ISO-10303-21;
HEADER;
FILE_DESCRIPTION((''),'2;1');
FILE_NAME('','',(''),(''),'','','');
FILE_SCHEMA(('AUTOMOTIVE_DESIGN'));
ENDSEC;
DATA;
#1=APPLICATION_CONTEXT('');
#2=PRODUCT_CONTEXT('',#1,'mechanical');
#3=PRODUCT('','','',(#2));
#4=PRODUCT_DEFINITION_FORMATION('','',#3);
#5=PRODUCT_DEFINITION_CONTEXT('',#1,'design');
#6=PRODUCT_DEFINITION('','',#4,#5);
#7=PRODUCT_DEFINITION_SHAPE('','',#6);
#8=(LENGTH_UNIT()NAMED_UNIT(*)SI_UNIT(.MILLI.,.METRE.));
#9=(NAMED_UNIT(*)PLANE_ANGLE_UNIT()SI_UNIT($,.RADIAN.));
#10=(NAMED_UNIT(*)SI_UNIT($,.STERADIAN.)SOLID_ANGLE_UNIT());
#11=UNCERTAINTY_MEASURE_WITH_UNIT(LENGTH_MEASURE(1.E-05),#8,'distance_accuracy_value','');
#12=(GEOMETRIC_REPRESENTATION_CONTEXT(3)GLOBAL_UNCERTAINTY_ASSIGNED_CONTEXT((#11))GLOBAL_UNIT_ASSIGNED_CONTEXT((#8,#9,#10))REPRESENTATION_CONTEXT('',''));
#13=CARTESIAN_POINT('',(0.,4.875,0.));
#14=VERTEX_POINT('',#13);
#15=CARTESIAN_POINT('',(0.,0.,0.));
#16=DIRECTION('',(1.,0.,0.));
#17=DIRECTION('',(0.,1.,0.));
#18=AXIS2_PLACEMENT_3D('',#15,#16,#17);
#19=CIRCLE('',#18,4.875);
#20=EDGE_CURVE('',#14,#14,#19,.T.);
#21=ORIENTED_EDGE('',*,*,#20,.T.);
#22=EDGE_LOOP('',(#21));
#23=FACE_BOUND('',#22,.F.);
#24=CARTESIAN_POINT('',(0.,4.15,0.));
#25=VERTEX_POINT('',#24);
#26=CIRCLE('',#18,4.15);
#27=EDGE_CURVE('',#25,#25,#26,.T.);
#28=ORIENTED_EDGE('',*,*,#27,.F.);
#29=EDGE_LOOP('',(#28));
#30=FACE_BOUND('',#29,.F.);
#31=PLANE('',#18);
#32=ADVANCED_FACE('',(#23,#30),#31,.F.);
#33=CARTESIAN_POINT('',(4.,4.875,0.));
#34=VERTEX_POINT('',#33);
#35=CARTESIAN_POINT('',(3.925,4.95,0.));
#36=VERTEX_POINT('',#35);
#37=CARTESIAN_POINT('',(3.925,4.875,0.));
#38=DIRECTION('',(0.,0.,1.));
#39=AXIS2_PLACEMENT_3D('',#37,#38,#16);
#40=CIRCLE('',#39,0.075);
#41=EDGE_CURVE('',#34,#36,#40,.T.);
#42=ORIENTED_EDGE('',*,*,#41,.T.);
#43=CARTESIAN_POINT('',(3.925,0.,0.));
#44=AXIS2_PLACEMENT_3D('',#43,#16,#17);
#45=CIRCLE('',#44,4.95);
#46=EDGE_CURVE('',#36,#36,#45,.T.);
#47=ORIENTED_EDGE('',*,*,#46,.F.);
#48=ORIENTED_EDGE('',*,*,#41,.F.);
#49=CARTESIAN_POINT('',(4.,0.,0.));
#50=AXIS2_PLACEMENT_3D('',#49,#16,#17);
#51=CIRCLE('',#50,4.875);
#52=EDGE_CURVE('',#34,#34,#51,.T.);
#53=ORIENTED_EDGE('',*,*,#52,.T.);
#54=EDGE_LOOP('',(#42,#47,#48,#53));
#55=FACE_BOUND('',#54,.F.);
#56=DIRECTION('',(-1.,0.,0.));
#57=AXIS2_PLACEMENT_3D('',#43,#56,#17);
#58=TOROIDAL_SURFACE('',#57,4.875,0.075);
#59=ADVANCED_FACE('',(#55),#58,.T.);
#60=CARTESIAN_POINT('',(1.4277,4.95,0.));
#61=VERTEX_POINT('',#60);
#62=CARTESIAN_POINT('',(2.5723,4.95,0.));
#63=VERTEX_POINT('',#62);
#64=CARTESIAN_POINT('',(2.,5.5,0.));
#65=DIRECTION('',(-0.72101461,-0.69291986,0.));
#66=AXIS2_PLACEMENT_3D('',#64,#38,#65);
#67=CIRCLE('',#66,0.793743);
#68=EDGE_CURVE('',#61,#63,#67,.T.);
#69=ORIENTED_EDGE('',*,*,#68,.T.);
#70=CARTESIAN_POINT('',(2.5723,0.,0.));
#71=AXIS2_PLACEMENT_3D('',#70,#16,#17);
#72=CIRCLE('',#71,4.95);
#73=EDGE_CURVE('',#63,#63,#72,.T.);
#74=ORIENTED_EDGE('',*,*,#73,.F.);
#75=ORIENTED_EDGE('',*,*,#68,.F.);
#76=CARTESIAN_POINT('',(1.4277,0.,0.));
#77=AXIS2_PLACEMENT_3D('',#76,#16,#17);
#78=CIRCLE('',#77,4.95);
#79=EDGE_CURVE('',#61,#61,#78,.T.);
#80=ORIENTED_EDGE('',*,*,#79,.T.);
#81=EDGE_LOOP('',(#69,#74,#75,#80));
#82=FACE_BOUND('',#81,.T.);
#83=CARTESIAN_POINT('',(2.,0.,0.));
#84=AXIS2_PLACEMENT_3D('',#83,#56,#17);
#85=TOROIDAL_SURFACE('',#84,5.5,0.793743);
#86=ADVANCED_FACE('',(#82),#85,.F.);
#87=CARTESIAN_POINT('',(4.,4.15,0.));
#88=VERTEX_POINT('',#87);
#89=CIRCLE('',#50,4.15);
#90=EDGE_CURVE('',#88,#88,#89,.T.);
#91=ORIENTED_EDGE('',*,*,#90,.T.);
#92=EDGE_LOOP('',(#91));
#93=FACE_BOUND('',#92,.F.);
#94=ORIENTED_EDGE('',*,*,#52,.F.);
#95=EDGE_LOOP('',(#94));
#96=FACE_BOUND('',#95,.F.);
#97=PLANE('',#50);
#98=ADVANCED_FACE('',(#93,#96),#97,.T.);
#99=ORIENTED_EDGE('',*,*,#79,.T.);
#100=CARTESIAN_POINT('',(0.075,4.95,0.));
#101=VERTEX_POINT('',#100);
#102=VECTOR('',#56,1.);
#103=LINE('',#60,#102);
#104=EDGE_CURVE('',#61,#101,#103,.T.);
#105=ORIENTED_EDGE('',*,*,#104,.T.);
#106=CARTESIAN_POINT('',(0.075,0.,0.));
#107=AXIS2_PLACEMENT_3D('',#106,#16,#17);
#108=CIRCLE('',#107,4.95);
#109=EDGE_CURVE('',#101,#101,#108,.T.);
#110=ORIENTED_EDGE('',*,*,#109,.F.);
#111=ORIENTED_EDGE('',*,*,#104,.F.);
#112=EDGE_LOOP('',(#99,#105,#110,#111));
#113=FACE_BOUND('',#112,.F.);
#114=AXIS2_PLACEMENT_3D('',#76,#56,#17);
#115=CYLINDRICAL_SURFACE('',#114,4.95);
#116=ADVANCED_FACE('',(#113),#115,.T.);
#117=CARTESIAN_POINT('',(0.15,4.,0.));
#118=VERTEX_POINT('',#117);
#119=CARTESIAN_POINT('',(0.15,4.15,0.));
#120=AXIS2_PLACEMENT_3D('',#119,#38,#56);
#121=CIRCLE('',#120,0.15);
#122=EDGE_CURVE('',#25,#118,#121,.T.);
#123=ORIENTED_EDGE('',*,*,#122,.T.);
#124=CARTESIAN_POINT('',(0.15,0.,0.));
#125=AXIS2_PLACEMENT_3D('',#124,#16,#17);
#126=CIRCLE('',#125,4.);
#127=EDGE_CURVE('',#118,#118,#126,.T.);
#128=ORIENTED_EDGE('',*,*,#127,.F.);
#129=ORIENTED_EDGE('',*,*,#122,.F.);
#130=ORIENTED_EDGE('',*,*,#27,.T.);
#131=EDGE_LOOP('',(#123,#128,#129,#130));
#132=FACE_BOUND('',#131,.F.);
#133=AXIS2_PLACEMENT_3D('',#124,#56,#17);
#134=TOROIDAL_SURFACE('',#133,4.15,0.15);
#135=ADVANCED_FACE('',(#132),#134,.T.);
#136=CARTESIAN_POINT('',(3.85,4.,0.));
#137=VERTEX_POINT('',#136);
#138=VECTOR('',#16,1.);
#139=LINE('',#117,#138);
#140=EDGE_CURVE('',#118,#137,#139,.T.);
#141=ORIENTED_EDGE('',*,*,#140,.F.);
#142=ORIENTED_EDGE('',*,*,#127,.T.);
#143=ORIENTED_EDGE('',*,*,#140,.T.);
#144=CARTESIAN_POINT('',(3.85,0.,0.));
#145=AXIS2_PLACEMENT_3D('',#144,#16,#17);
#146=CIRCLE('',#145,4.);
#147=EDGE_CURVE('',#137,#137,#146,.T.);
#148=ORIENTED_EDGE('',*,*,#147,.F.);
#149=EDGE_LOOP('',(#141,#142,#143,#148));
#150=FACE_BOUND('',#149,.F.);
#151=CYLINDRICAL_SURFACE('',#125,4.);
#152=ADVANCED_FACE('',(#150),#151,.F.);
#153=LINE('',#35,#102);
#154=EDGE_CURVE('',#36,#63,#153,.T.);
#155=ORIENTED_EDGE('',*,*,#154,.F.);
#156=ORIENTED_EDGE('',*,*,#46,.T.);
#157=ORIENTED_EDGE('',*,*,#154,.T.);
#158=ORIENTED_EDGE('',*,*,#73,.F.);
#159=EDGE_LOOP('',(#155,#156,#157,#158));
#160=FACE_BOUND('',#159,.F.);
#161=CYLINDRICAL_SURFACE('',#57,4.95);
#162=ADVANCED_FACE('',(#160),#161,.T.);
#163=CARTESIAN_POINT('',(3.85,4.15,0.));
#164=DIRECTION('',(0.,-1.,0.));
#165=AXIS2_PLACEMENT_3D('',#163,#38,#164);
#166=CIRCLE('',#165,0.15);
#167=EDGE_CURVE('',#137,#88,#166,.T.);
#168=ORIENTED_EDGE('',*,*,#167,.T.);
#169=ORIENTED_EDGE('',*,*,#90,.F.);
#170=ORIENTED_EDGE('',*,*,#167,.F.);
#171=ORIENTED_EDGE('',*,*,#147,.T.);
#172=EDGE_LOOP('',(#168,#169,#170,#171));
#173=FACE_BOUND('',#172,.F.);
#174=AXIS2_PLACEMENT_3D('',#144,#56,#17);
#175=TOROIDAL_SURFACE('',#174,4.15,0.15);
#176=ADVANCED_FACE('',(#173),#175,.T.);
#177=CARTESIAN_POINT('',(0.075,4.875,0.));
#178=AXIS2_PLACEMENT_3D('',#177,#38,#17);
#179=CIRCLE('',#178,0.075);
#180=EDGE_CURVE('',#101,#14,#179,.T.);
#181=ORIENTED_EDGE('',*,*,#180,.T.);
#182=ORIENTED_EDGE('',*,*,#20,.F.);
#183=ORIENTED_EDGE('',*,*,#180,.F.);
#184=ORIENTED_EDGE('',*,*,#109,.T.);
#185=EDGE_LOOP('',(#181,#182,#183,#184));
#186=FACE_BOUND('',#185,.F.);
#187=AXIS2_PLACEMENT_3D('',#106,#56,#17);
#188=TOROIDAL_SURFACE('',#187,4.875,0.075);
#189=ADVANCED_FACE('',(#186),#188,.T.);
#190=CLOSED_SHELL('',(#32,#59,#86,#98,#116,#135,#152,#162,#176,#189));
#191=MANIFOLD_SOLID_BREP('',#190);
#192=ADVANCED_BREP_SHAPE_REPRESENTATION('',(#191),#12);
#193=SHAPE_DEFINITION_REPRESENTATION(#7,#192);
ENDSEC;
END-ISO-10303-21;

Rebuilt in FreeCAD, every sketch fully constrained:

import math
import FreeCAD as App
import Part
import Sketcher
Q = App.Units.Quantity

doc = App.newDocument("Part")
body = doc.addObject("PartDesign::Body", "Body")

# Sketch on XY plane
sketch1 = body.newObject("Sketcher::SketchObject", "Sketch")
sketch1.AttachmentSupport = (doc.getObject("XY_Plane"), [""])
sketch1.MapMode = "FlatFace"
sketch1.addGeometry(Part.ArcOfCircle(Part.Circle(App.Vector(0.07, 4.88, 0), App.Vector(0, 0, 1), 0.08), math.radians(90), math.radians(180)), False)
sketch1.addGeometry(Part.LineSegment(App.Vector(0, 4.88, 0), App.Vector(0, 4.15, 0)), False)
sketch1.addGeometry(Part.ArcOfCircle(Part.Circle(App.Vector(0.15, 4.15, 0), App.Vector(0, 0, 1), 0.15), math.radians(180), math.radians(270)), False)
sketch1.addGeometry(Part.LineSegment(App.Vector(0.15, 4, 0), App.Vector(3.85, 4, 0)), False)
sketch1.addGeometry(Part.ArcOfCircle(Part.Circle(App.Vector(3.85, 4.15, 0), App.Vector(0, 0, 1), 0.15), math.radians(-90), math.radians(0)), False)
sketch1.addGeometry(Part.LineSegment(App.Vector(4, 4.15, 0), App.Vector(4, 4.88, 0)), False)
sketch1.addGeometry(Part.ArcOfCircle(Part.Circle(App.Vector(3.92, 4.88, 0), App.Vector(0, 0, 1), 0.08), math.radians(0), math.radians(90)), False)
sketch1.addGeometry(Part.LineSegment(App.Vector(3.92, 4.95, 0), App.Vector(2.57, 4.95, 0)), False)
sketch1.addGeometry(Part.ArcOfCircle(Part.Circle(App.Vector(2, 5.5, 0), App.Vector(0, 0, 1), 0.79), math.radians(-136), math.radians(-44)), False)
sketch1.addGeometry(Part.LineSegment(App.Vector(1.43, 4.95, 0), App.Vector(0.07, 4.95, 0)), False)
sketch1.addConstraint(Sketcher.Constraint("Tangent", 0, 2, 1, 1))
sketch1.addConstraint(Sketcher.Constraint("Tangent", 1, 2, 2, 1))
sketch1.addConstraint(Sketcher.Constraint("Tangent", 2, 2, 3, 1))
sketch1.addConstraint(Sketcher.Constraint("Tangent", 3, 2, 4, 1))
sketch1.addConstraint(Sketcher.Constraint("Tangent", 4, 2, 5, 1))
sketch1.addConstraint(Sketcher.Constraint("Tangent", 5, 2, 6, 1))
sketch1.addConstraint(Sketcher.Constraint("Tangent", 6, 2, 7, 1))
sketch1.addConstraint(Sketcher.Constraint("Coincident", 7, 2, 8, 2))
sketch1.addConstraint(Sketcher.Constraint("Coincident", 8, 1, 9, 1))
sketch1.addConstraint(Sketcher.Constraint("Tangent", 9, 2, 0, 1))
sketch1.addConstraint(Sketcher.Constraint("Vertical", 1))
sketch1.addConstraint(Sketcher.Constraint("Horizontal", 3))
sketch1.addConstraint(Sketcher.Constraint("Vertical", 5))
sketch1.addConstraint(Sketcher.Constraint("Horizontal", 7))
sketch1.addConstraint(Sketcher.Constraint("Horizontal", 9))
sketch1.addConstraint(Sketcher.Constraint("Equal", 2, 4))
sketch1.addConstraint(Sketcher.Constraint("Equal", 0, 6))
sketch1.addConstraint(Sketcher.Constraint("PointOnObject", 0, 2, -2))
sketch1.addConstraint(Sketcher.Constraint("Horizontal", 0, 3, 6, 3))
sketch1.addConstraint(Sketcher.Constraint("Equal", 7, 9))
sketch1.addConstraint(Sketcher.Constraint("Radius", 2, Q("0.15 mm")))
sketch1.addConstraint(Sketcher.Constraint("DistanceX", 3, 1, 3, 2, Q("3.7 mm")))
sketch1.addConstraint(Sketcher.Constraint("DistanceY", -1, 1, 2, 2, Q("4 mm")))
sketch1.addConstraint(Sketcher.Constraint("Radius", 0, Q("0.075 mm")))
sketch1.addConstraint(Sketcher.Constraint("DistanceY", -1, 1, 8, 3, Q("5.5 mm")))
sketch1.addConstraint(Sketcher.Constraint("Radius", 8, Q("0.7937 mm")))
sketch1.addConstraint(Sketcher.Constraint("DistanceY", 4, 3, 6, 2, Q("0.8 mm")))
revolution = body.newObject("PartDesign::Revolution", "Revolution")
revolution.Profile = sketch1
revolution.ReferenceAxis = (sketch1, ["H_Axis"])
revolution.Angle = 360

doc.recompute()
